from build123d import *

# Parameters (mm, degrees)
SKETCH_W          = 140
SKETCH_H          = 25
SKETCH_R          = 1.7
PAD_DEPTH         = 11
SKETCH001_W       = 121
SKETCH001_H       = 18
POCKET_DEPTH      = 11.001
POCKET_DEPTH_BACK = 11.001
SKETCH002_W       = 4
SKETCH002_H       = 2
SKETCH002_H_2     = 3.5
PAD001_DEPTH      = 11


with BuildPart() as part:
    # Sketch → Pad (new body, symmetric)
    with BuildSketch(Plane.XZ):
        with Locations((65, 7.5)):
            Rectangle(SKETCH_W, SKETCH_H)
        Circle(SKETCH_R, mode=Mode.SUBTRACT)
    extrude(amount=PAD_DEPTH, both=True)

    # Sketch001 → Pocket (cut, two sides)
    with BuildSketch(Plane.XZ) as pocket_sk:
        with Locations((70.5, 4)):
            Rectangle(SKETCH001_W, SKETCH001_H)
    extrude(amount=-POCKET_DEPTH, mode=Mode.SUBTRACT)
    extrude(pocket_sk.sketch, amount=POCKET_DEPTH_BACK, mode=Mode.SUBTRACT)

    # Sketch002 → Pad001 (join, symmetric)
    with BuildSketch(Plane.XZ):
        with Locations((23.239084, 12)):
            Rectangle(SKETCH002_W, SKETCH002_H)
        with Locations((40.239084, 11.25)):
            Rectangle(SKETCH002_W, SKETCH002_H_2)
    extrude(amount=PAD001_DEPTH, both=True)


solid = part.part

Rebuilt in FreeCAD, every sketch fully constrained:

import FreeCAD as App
import Part
import Sketcher

V = App.Vector
Q = App.Units.Quantity


def add_polygon(sketch, points):
    """Adds a closed chain of lines whose ends are joined by coincident constraints."""
    first, n = sketch.GeometryCount, len(points)
    for a, b in zip(points, points[1:] + points[:1]):
        sketch.addGeometry(Part.LineSegment(App.Vector(*a, 0), App.Vector(*b, 0)), False)
    for i in range(n):
        sketch.addConstraint(Sketcher.Constraint("Coincident", first + i, 2, first + (i + 1) % n, 1))

doc = App.newDocument("Part")
params = doc.addObject("Spreadsheet::Sheet", "Params")
for row, (alias, value) in enumerate([
    ("sketch1_diameter", "3.4 mm"),
    ("sketch1_width", "140 mm"),
    ("sketch1_height", "25 mm"),
    ("pad1_length", "22 mm"),
    ("sketch2_width", "121 mm"),
    ("sketch2_height", "18 mm"),
    ("sketch3_width", "4 mm"),
    ("sketch3_height", "2 mm"),
    ("sketch3_height2", "3.5 mm"),
    ("pad2_length", "22 mm"),
], start=1):
    params.set(f"A{row}", alias)
    params.set(f"B{row}", "=" + value)
    params.setAlias(f"B{row}", alias)

body = doc.addObject("PartDesign::Body", "Body")

sketch1 = doc.addObject("Sketcher::SketchObject", "Sketch")
body.addObject(sketch1)
sketch1.AttachmentSupport = (doc.XZ_Plane, [""])
sketch1.MapMode = "FlatFace"
add_polygon(sketch1, [(-5, 20), (-5, -5), (135, -5), (135, 20)])
sketch1.addGeometry(Part.Circle(V(0, 0, 0), V(0, 0, 1), 1.7), False)
sketch1.addConstraint([
    Sketcher.Constraint("Vertical", 0),
    Sketcher.Constraint("Horizontal", 1),
    Sketcher.Constraint("Vertical", 2),
    Sketcher.Constraint("Horizontal", 3),
    Sketcher.Constraint("Coincident", 4, 3, -1, 1),
    Sketcher.Constraint("Diameter", 4, Q("3.4 mm")),
    Sketcher.Constraint("DistanceX", 1, 1, 1, 2, Q("140 mm")),
    Sketcher.Constraint("DistanceY", 0, 2, 0, 1, Q("25 mm")),
    Sketcher.Constraint("DistanceX", 0, 2, -1, 1, Q("5 mm")),
    Sketcher.Constraint("DistanceY", 0, 2, -1, 1, Q("5 mm")),
])
sketch1.setExpression("Constraints[9]", "Params.sketch1_diameter")
sketch1.setExpression("Constraints[10]", "Params.sketch1_width")
sketch1.setExpression("Constraints[11]", "Params.sketch1_height")
pad1 = doc.addObject("PartDesign::Pad", "Pad")
body.addObject(pad1)
pad1.Profile = sketch1
pad1.setExpression("Length", "Params.pad1_length")
pad1.Midplane = True

sketch2 = doc.addObject("Sketcher::SketchObject", "Sketch001")
body.addObject(sketch2)
sketch2.AttachmentSupport = (doc.XZ_Plane, [""])
sketch2.MapMode = "FlatFace"
add_polygon(sketch2, [(10, 13), (10, -5), (131, -5), (131, 13)])
sketch2.addConstraint([
    Sketcher.Constraint("Vertical", 0),
    Sketcher.Constraint("Horizontal", 1),
    Sketcher.Constraint("Vertical", 2),
    Sketcher.Constraint("Horizontal", 3),
    Sketcher.Constraint("DistanceX", 1, 1, 1, 2, Q("121 mm")),
    Sketcher.Constraint("DistanceY", 0, 2, 0, 1, Q("18 mm")),
    Sketcher.Constraint("DistanceX", -1, 1, 0, 2, Q("10 mm")),
    Sketcher.Constraint("DistanceY", 0, 2, -1, 1, Q("5 mm")),
])
sketch2.setExpression("Constraints[8]", "Params.sketch2_width")
sketch2.setExpression("Constraints[9]", "Params.sketch2_height")
pocket1 = doc.addObject("PartDesign::Pocket", "Pocket")
body.addObject(pocket1)
pocket1.Profile = sketch2
pocket1.Type = "ThroughAll"
pocket1.Midplane = True

sketch3 = doc.addObject("Sketcher::SketchObject", "Sketch002")
body.addObject(sketch3)
sketch3.AttachmentSupport = (doc.XZ_Plane, [""])
sketch3.MapMode = "FlatFace"
add_polygon(sketch3, [(21.2, 13), (21.2, 11), (25.2, 11), (25.2, 13)])
add_polygon(sketch3, [(38.2, 13), (38.2, 9.5), (42.2, 9.5), (42.2, 13)])
sketch3.addConstraint([
    Sketcher.Constraint("Vertical", 0),
    Sketcher.Constraint("Horizontal", 1),
    Sketcher.Constraint("Vertical", 2),
    Sketcher.Constraint("Horizontal", 3),
    Sketcher.Constraint("Vertical", 4),
    Sketcher.Constraint("Horizontal", 5),
    Sketcher.Constraint("Vertical", 6),
    Sketcher.Constraint("Horizontal", 7),
    Sketcher.Constraint("Horizontal", 3, 2, 6, 2),
    Sketcher.Constraint("Equal", 3, 5),
    Sketcher.Constraint("DistanceX", 1, 1, 1, 2, Q("4 mm")),
    Sketcher.Constraint("DistanceY", 0, 2, 0, 1, Q("2 mm")),
    Sketcher.Constraint("DistanceY", 4, 2, 4, 1, Q("3.5 mm")),
    Sketcher.Constraint("DistanceY", -1, 1, 0, 2, Q("11 mm")),
    Sketcher.Constraint("DistanceX", 1, 2, 4, 2, Q("13 mm")),
    Sketcher.Constraint("DistanceX", -1, 1, 0, 2, Q("21.239084 mm")),
])
sketch3.setExpression("Constraints[18]", "Params.sketch3_width")
sketch3.setExpression("Constraints[19]", "Params.sketch3_height")
sketch3.setExpression("Constraints[20]", "Params.sketch3_height2")
pad2 = doc.addObject("PartDesign::Pad", "Pad001")
body.addObject(pad2)
pad2.Profile = sketch3
pad2.setExpression("Length", "Params.pad2_length")
pad2.Midplane = True

doc.recompute()
